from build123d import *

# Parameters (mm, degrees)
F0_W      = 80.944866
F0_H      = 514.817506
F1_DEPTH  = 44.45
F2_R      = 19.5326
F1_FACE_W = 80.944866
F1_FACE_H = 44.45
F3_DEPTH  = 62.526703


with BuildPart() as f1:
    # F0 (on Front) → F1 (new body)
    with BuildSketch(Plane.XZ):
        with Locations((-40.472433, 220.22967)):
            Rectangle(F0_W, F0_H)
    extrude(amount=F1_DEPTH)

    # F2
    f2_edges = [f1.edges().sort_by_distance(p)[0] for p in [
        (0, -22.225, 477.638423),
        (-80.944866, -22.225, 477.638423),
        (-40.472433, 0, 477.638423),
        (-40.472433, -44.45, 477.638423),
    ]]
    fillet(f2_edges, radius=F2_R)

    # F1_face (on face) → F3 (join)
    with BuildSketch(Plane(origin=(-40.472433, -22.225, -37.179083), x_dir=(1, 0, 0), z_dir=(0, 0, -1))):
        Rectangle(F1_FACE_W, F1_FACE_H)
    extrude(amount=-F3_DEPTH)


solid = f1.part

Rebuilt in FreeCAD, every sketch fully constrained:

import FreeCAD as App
import Part
import Sketcher
from FreeCAD import Vector
Q = App.Units.Quantity


def edges_at(feature, points):
    """Names of the edges that pass closest to the given points."""
    edges = feature.Shape.Edges
    near = lambda p: min(range(len(edges)), key=lambda i: edges[i].distToShape(Part.Vertex(*p))[0])
    return sorted({f"Edge{near(p) + 1}" for p in points})

doc = App.newDocument("Part")
body = doc.addObject("PartDesign::Body", "Body")

# Sketch on XZ plane
sketch1 = body.newObject("Sketcher::SketchObject", "Sketch")
sketch1.AttachmentSupport = (doc.getObject("XZ_Plane"), [""])
sketch1.MapMode = "FlatFace"
sketch1.addGeometry([
    Part.LineSegment(Vector(-81, 478, 0), Vector(-81, -37, 0)),
    Part.LineSegment(Vector(-81, -37, 0), Vector(0, -37, 0)),
    Part.LineSegment(Vector(0, -37, 0), Vector(0, 478, 0)),
    Part.LineSegment(Vector(0, 478, 0), Vector(-81, 478, 0)),
], False)
sketch1.addConstraint([
    Sketcher.Constraint("Coincident", 0, 2, 1, 1),
    Sketcher.Constraint("Coincident", 1, 2, 2, 1),
    Sketcher.Constraint("Coincident", 2, 2, 3, 1),
    Sketcher.Constraint("Coincident", 3, 2, 0, 1),
    Sketcher.Constraint("Vertical", 0),
    Sketcher.Constraint("Horizontal", 1),
    Sketcher.Constraint("Vertical", 2),
    Sketcher.Constraint("Horizontal", 3),
    Sketcher.Constraint("PointOnObject", 1, 2, -2),
    Sketcher.Constraint("DistanceX", 1, 1, 1, 2, 80.944866),
    Sketcher.Constraint("DistanceY", 0, 2, 0, 1, 514.817506),
    Sketcher.Constraint("DistanceY", 0, 2, -1, 1, 37.179083),
])
pad1 = body.newObject("PartDesign::Pad", "Pad")
pad1.Profile = sketch1
pad1.Length = Q("1.75 in")
doc.recompute()

fillet = body.newObject("PartDesign::Fillet", "Fillet")
fillet.Base = (pad1, edges_at(pad1, [
    (0, -22.225, 477.638),
    (-80.945, -22.225, 477.638),
    (-40.472, 0, 477.638),
    (-40.472, -44.45, 477.638),
]))
fillet.Radius = Q("0.769 in")

# Sketch on XY plane
sketch2 = body.newObject("Sketcher::SketchObject", "Sketch001")
sketch2.AttachmentSupport = (doc.getObject("XY_Plane"), [""])
sketch2.MapMode = "FlatFace"
sketch2.AttachmentOffset = App.Placement(Vector(0, 0, -37.179083), App.Rotation())
sketch2.addGeometry([
    Part.LineSegment(Vector(-81, -44, 0), Vector(-81, 0, 0)),
    Part.LineSegment(Vector(-81, 0, 0), Vector(0, 0, 0)),
    Part.LineSegment(Vector(0, 0, 0), Vector(0, -44, 0)),
    Part.LineSegment(Vector(0, -44, 0), Vector(-81, -44, 0)),
], False)
sketch2.addConstraint([
    Sketcher.Constraint("Coincident", 0, 2, 1, 1),
    Sketcher.Constraint("Coincident", 1, 2, 2, 1),
    Sketcher.Constraint("Coincident", 2, 2, 3, 1),
    Sketcher.Constraint("Coincident", 3, 2, 0, 1),
    Sketcher.Constraint("Vertical", 0),
    Sketcher.Constraint("Horizontal", 1),
    Sketcher.Constraint("Vertical", 2),
    Sketcher.Constraint("Horizontal", 3),
    Sketcher.Constraint("Coincident", 1, 2, -1, 1),
    Sketcher.Constraint("DistanceY", 0, 1, 0, 2, Q("1.75 in")),
    Sketcher.Constraint("DistanceX", 1, 1, 1, 2, 80.944866),
])
pad2 = body.newObject("PartDesign::Pad", "Pad001")
pad2.Profile = sketch2
pad2.Length = 62.526703

doc.recompute()
